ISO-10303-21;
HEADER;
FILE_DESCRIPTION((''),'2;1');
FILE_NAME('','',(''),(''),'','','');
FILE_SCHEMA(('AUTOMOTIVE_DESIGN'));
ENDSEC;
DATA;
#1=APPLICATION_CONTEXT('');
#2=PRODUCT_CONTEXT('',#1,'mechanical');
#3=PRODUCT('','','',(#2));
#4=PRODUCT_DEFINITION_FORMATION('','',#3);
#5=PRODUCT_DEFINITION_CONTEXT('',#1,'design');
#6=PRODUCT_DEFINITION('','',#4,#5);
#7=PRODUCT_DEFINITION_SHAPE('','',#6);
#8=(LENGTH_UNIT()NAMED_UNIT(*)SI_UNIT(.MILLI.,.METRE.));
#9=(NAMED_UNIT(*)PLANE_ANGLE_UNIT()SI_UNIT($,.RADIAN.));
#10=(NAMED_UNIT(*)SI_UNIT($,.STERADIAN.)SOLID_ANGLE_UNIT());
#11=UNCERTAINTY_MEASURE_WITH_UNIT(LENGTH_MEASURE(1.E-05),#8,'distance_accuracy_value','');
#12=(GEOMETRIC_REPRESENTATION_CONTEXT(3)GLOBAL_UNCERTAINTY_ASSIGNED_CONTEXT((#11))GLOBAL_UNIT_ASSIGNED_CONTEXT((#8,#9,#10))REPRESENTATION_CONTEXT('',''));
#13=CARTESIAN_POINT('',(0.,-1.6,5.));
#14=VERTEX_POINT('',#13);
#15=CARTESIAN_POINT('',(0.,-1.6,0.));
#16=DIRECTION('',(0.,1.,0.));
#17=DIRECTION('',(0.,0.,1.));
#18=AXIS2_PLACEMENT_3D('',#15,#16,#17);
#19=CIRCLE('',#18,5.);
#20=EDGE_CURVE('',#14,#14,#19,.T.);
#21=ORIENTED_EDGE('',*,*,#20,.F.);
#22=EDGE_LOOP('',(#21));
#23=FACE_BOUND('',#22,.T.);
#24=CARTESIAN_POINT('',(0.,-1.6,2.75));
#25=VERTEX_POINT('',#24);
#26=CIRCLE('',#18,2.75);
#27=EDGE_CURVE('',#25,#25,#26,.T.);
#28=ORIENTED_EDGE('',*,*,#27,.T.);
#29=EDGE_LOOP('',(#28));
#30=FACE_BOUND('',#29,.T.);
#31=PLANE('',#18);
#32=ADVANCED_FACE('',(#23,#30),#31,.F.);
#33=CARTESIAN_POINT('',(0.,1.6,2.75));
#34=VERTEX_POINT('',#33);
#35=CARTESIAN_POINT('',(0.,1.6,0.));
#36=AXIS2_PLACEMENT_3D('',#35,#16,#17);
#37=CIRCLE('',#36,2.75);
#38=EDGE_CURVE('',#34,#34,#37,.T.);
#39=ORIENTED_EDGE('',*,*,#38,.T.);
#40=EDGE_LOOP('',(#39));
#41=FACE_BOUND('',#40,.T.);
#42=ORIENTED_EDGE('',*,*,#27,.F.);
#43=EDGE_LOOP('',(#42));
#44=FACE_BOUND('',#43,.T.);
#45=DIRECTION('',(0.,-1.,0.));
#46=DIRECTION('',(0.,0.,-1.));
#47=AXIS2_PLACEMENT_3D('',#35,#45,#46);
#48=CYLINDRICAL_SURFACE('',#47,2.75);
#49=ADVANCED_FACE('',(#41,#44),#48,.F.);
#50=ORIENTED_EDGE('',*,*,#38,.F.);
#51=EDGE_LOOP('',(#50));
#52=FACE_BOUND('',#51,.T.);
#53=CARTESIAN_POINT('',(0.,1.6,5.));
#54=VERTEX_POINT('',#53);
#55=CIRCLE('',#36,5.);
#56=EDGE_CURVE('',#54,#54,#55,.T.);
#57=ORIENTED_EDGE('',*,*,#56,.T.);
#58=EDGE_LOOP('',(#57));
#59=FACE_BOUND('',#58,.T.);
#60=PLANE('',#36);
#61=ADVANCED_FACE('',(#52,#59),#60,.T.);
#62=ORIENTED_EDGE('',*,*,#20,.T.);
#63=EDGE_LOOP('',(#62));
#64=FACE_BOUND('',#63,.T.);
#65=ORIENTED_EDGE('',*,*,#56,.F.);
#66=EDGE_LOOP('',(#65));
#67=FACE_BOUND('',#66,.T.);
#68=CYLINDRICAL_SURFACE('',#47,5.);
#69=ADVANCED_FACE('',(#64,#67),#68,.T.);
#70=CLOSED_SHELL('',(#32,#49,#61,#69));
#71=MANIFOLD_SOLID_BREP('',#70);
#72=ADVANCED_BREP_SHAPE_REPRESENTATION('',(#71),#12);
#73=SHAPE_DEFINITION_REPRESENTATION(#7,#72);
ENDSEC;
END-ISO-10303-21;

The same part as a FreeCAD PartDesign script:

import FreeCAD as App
import Part
import Sketcher

V = App.Vector

doc = App.newDocument("Part")
body = doc.addObject("PartDesign::Body", "Body")

# Sketch on XZ plane
sketch1 = body.newObject("Sketcher::SketchObject", "Sketch")
sketch1.AttachmentSupport = (doc.getObject("XZ_Plane"), [""])
sketch1.MapMode = "FlatFace"
sketch1.addGeometry([
    Part.Circle(V(0, 0, 0), V(0, 0, 1), 5),
    Part.Circle(V(0, 0, 0), V(0, 0, 1), 2.8),
], False)
sketch1.addConstraint([
    Sketcher.Constraint("Coincident", 0, 3, -1, 1),
    Sketcher.Constraint("Coincident", 1, 3, -1, 1),
    Sketcher.Constraint("Diameter", 0, 10.0),
    Sketcher.Constraint("Diameter", 1, 5.5),
])
pad1 = body.newObject("PartDesign::Pad", "Pad")
pad1.Profile = sketch1
pad1.Length = 3.2
pad1.Midplane = True

doc.recompute()
